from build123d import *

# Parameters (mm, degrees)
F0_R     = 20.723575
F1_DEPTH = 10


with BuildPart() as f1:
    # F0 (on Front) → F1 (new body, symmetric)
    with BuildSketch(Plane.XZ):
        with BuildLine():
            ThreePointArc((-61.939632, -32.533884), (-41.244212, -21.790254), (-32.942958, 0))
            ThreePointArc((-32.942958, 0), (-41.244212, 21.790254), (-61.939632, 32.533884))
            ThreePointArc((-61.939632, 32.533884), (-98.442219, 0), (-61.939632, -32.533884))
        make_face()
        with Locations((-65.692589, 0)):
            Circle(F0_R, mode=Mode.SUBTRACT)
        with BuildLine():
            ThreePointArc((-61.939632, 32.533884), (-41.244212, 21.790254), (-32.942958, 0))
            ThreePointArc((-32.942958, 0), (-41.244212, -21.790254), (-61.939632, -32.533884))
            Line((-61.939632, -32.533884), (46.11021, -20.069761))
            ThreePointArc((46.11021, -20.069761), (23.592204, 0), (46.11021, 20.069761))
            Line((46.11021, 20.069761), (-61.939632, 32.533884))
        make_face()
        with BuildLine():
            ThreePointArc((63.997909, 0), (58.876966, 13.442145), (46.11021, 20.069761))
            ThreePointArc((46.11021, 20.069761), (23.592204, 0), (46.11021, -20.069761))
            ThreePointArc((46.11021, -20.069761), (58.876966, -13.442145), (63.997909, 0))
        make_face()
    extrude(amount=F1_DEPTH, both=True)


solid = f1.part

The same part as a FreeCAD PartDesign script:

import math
import FreeCAD as App
import Part
import Sketcher

V = App.Vector

doc = App.newDocument("Part")
body = doc.addObject("PartDesign::Body", "Body")

# Sketch on XZ plane
sketch1 = body.newObject("Sketcher::SketchObject", "Sketch")
sketch1.AttachmentSupport = (doc.getObject("XZ_Plane"), [""])
sketch1.MapMode = "FlatFace"
sketch1.addGeometry([
    Part.ArcOfCircle(Part.Circle(V(-65.692589, 0, 0), V(0, 0, 1), 32.74963), math.radians(83.419712), math.radians(276.580288)),  # 0
    Part.LineSegment(V(-61.939632, -32.533884, 0), V(46.11021, -20.069761, 0)),  # 1
    Part.ArcOfCircle(Part.Circle(V(43.795057, -0.000001, 0), V(0, 0, 1), 20.202852), math.radians(-83.419715), math.radians(0.000002)),  # 2
    Part.ArcOfCircle(Part.Circle(V(43.795057, 0.000001, 0), V(0, 0, 1), 20.202852), math.radians(-0.000002), math.radians(83.419715)),  # 3
    Part.LineSegment(V(46.11021, 20.069761, 0), V(-61.939632, 32.533884, 0)),  # 4
    Part.Circle(V(-65.692589, 0, 0), V(0, 0, 1), 20.723575),  # 5
], False)
sketch1.addConstraint([
    Sketcher.Constraint("Tangent", 0, 2, 1, 1),
    Sketcher.Constraint("Tangent", 1, 2, 2, 1),
    Sketcher.Constraint("Tangent", 2, 2, 3, 1),
    Sketcher.Constraint("Tangent", 3, 2, 4, 1),
    Sketcher.Constraint("Tangent", 4, 2, 0, 1),
    Sketcher.Constraint("Coincident", 5, 3, 0, 3),
    Sketcher.Constraint("Equal", 2, 3),
    Sketcher.Constraint("Symmetric", 1, 2, 3, 2, -1),
    Sketcher.Constraint("PointOnObject", 2, 2, -1),
    Sketcher.Constraint("Diameter", 5, 41.44715),
    Sketcher.Constraint("Radius", 0, 32.74963),
    Sketcher.Constraint("Radius", 2, 20.202852),
    Sketcher.Constraint("DistanceX", 0, 3, 1, 2, 111.802799),
    Sketcher.Constraint("DistanceX", 0, 3, -1, 1, 65.692589),
])
pad1 = body.newObject("PartDesign::Pad", "Pad")
pad1.Profile = sketch1
pad1.Length = 20
pad1.Midplane = True

doc.recompute()
